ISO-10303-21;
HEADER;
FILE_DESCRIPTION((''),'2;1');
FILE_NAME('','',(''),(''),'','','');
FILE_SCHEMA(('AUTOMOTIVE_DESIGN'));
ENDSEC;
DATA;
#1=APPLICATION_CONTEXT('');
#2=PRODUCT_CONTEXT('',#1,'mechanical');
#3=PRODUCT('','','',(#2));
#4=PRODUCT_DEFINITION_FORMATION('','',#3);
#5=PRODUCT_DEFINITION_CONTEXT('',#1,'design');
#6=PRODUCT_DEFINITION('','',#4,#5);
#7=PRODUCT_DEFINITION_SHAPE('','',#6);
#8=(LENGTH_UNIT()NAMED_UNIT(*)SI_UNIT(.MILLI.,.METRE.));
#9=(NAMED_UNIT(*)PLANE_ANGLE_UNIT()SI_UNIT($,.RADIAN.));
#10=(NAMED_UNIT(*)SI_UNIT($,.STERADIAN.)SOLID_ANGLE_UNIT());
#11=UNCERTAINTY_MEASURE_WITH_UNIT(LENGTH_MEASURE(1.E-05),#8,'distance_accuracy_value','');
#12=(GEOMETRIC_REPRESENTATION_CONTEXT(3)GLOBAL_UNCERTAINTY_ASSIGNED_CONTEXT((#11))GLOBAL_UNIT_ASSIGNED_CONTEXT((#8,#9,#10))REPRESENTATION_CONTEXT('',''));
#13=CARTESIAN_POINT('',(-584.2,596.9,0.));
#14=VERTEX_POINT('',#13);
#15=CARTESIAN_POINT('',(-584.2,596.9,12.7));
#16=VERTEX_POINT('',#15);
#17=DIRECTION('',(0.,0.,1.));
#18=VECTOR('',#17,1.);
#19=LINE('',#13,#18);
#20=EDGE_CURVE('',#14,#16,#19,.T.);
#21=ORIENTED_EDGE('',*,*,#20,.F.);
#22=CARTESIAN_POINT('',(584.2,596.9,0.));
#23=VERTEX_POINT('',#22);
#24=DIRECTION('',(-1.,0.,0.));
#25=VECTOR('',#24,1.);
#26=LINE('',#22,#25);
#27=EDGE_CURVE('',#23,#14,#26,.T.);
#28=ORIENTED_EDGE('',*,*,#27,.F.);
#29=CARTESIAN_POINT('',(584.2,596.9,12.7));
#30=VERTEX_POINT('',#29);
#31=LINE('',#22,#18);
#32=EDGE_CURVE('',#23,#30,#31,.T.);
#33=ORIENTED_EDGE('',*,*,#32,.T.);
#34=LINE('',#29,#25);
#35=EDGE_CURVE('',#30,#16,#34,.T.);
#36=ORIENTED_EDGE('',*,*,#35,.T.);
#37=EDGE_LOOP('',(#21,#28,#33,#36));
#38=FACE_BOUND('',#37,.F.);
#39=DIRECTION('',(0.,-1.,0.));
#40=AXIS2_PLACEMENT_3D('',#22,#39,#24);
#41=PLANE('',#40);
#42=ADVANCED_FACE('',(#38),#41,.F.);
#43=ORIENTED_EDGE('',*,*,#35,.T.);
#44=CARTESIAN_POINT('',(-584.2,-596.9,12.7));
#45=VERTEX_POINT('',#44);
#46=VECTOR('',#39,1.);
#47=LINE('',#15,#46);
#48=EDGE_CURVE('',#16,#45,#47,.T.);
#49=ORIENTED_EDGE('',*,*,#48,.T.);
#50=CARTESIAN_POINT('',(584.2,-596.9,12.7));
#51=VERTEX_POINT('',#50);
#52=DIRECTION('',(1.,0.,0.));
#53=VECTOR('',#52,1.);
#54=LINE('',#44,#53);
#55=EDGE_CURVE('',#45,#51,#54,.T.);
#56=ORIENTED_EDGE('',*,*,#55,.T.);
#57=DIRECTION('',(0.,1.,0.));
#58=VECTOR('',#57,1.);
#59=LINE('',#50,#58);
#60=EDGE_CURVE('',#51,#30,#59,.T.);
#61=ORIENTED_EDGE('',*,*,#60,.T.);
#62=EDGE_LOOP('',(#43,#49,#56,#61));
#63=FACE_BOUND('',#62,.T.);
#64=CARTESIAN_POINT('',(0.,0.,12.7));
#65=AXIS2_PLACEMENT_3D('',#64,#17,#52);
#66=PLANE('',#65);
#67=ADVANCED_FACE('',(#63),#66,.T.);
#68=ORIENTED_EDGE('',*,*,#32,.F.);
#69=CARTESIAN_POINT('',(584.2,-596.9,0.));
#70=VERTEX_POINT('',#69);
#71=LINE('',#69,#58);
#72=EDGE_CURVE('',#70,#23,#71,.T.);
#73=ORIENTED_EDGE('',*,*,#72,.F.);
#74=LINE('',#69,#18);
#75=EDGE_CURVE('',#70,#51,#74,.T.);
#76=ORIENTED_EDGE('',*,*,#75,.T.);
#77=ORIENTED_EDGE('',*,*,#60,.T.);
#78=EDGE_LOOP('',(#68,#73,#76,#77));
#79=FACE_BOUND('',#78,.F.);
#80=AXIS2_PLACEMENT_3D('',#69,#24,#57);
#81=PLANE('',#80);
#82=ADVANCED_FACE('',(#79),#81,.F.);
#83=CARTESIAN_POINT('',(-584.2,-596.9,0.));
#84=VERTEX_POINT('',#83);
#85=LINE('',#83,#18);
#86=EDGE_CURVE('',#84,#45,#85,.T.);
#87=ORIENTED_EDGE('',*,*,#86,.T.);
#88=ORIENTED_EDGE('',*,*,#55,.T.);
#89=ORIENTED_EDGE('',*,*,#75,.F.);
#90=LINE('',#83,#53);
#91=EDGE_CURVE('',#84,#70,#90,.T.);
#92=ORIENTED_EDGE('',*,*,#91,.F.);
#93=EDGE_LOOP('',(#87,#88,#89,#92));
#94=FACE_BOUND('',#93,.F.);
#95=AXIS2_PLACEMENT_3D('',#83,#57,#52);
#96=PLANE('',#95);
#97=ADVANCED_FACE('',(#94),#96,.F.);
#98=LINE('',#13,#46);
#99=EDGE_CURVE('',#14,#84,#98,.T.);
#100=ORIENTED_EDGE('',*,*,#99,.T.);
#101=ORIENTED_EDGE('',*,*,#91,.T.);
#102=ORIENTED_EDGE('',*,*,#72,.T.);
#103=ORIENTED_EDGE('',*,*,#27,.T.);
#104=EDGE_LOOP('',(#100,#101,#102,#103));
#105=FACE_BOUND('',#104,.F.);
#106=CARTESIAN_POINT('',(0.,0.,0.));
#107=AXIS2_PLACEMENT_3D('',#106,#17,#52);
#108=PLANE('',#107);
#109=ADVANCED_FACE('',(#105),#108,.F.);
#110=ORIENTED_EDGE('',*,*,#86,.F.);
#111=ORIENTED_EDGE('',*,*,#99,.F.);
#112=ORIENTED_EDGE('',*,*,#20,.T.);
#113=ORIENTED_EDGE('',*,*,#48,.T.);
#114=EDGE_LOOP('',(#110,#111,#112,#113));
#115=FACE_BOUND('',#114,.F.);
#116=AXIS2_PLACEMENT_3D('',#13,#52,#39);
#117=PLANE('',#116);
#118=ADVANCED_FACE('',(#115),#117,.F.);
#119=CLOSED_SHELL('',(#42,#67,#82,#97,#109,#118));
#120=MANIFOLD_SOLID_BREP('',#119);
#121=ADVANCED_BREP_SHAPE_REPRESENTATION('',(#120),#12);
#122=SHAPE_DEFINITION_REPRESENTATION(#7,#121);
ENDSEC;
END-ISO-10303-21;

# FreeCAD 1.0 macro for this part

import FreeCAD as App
import Part
import Sketcher
Q = App.Units.Quantity

doc = App.newDocument("Part")
body = doc.addObject("PartDesign::Body", "Body")

# Sketch on XY plane
sketch1 = doc.addObject("Sketcher::SketchObject", "Sketch")
body.addObject(sketch1)
sketch1.AttachmentSupport = (doc.XY_Plane, [""])
sketch1.MapMode = "FlatFace"
sketch1.addGeometry([
    Part.LineSegment(App.Vector(-584, 597, 0), App.Vector(-584, -597, 0)),
    Part.LineSegment(App.Vector(-584, -597, 0), App.Vector(584, -597, 0)),
    Part.LineSegment(App.Vector(584, -597, 0), App.Vector(584, 597, 0)),
    Part.LineSegment(App.Vector(584, 597, 0), App.Vector(-584, 597, 0)),
], False)
sketch1.addConstraint([
    Sketcher.Constraint("Coincident", 0, 2, 1, 1),
    Sketcher.Constraint("Coincident", 1, 2, 2, 1),
    Sketcher.Constraint("Coincident", 2, 2, 3, 1),
    Sketcher.Constraint("Coincident", 3, 2, 0, 1),
    Sketcher.Constraint("Vertical", 0),
    Sketcher.Constraint("Horizontal", 1),
    Sketcher.Constraint("Vertical", 2),
    Sketcher.Constraint("Horizontal", 3),
    Sketcher.Constraint("Symmetric", 0, 2, 2, 2, -1, 1),
    Sketcher.Constraint("DistanceX", 1, 1, 1, 2, Q("46 in")),
    Sketcher.Constraint("DistanceY", 0, 2, 0, 1, Q("47 in")),
])
pad1 = doc.addObject("PartDesign::Pad", "Pad")
body.addObject(pad1)
pad1.Profile = sketch1
pad1.Length = Q("0.5 in")

doc.recompute()
